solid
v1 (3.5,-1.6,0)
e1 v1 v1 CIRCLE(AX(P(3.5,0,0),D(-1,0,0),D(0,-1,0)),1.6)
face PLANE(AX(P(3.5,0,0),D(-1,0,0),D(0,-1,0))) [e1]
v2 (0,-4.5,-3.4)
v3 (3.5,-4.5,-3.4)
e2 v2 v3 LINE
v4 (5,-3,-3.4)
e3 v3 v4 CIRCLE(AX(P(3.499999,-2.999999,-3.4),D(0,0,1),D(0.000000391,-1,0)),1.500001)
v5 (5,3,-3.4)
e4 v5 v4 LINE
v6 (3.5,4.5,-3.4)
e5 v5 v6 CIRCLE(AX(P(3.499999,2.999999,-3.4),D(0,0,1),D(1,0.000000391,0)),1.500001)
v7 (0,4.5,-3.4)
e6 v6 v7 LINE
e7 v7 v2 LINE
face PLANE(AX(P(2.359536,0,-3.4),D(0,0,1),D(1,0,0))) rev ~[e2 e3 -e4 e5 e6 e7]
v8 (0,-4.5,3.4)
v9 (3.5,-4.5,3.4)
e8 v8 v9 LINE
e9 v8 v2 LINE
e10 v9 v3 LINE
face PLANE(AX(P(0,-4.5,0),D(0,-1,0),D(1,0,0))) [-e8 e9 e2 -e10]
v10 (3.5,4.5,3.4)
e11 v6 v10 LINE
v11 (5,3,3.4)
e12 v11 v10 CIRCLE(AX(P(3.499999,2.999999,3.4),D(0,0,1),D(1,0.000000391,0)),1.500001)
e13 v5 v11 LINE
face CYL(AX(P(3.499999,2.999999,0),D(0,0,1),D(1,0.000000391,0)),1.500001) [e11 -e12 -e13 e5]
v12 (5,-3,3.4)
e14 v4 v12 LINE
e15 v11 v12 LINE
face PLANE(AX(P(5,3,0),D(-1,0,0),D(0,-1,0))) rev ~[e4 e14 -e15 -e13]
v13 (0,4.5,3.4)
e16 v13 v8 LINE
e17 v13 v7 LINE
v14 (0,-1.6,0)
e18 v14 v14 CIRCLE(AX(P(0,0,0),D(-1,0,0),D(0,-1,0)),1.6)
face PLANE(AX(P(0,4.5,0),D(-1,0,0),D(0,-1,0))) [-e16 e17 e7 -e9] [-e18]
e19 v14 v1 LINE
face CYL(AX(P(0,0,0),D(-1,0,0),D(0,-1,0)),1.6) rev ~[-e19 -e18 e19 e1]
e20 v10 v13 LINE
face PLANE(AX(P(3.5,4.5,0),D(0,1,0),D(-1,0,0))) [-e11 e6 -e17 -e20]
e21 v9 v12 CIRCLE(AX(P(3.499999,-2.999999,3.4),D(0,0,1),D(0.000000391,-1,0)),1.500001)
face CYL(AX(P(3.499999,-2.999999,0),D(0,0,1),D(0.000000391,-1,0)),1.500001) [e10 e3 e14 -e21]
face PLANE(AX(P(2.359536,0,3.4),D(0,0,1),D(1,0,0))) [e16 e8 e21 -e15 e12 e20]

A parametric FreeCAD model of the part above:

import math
import FreeCAD as App
import Part
import Sketcher

V = App.Vector
Q = App.Units.Quantity

doc = App.newDocument("Part")
body = doc.addObject("PartDesign::Body", "Body")

# Sketch on XY plane
sketch1 = body.newObject("Sketcher::SketchObject", "Sketch")
sketch1.AttachmentSupport = (doc.getObject("XY_Plane"), [""])
sketch1.MapMode = "FlatFace"
sketch1.addGeometry([
    Part.ArcOfCircle(Part.Circle(V(3.5, -3, 0), V(0, 0, 1), 1.5), math.radians(-90), math.radians(0)),  # 0
    Part.LineSegment(V(5, -3, 0), V(5, 3, 0)),  # 1
    Part.ArcOfCircle(Part.Circle(V(3.5, 3, 0), V(0, 0, 1), 1.5), math.radians(0), math.radians(90)),  # 2
    Part.LineSegment(V(3.5, 4.5, 0), V(0, 4.5, 0)),  # 3
    Part.LineSegment(V(0, 4.5, 0), V(0, -4.5, 0)),  # 4
    Part.LineSegment(V(0, -4.5, 0), V(3.5, -4.5, 0)),  # 5
], False)
sketch1.addConstraint([
    Sketcher.Constraint("Tangent", 0, 2, 1, 1),
    Sketcher.Constraint("Tangent", 1, 2, 2, 1),
    Sketcher.Constraint("Tangent", 2, 2, 3, 1),
    Sketcher.Constraint("Coincident", 3, 2, 4, 1),
    Sketcher.Constraint("Coincident", 4, 2, 5, 1),
    Sketcher.Constraint("Tangent", 5, 2, 0, 1),
    Sketcher.Constraint("Vertical", 1),
    Sketcher.Constraint("Horizontal", 3),
    Sketcher.Constraint("Vertical", 4),
    Sketcher.Constraint("Horizontal", 5),
    Sketcher.Constraint("Equal", 0, 2),
    Sketcher.Constraint("Symmetric", 3, 2, 4, 2, -1, 1),
    Sketcher.Constraint("Radius", 0, Q("1.500001 mm")),
    Sketcher.Constraint("DistanceY", 1, 1, 1, 2, Q("6 mm")),
    Sketcher.Constraint("DistanceX", 3, 2, 3, 1, Q("3.5 mm")),
])
pad1 = body.newObject("PartDesign::Pad", "Pad")
pad1.Profile = sketch1
pad1.Length = 6.8
pad1.Midplane = True

# Sketch on YZ plane
sketch2 = body.newObject("Sketcher::SketchObject", "Sketch001")
sketch2.AttachmentSupport = (doc.getObject("YZ_Plane"), [""])
sketch2.MapMode = "FlatFace"
sketch2.addGeometry(Part.Circle(V(0, 0, 0), V(0, 0, 1), 1.6), False)
sketch2.addConstraint([
    Sketcher.Constraint("Coincident", 0, 3, -1, 1),
    Sketcher.Constraint("Diameter", 0, Q("3.2 mm")),
])
pocket1 = body.newObject("PartDesign::Pocket", "Pocket")
pocket1.Profile = sketch2
pocket1.Length = 3.5
pocket1.Reversed = True

doc.recompute()
